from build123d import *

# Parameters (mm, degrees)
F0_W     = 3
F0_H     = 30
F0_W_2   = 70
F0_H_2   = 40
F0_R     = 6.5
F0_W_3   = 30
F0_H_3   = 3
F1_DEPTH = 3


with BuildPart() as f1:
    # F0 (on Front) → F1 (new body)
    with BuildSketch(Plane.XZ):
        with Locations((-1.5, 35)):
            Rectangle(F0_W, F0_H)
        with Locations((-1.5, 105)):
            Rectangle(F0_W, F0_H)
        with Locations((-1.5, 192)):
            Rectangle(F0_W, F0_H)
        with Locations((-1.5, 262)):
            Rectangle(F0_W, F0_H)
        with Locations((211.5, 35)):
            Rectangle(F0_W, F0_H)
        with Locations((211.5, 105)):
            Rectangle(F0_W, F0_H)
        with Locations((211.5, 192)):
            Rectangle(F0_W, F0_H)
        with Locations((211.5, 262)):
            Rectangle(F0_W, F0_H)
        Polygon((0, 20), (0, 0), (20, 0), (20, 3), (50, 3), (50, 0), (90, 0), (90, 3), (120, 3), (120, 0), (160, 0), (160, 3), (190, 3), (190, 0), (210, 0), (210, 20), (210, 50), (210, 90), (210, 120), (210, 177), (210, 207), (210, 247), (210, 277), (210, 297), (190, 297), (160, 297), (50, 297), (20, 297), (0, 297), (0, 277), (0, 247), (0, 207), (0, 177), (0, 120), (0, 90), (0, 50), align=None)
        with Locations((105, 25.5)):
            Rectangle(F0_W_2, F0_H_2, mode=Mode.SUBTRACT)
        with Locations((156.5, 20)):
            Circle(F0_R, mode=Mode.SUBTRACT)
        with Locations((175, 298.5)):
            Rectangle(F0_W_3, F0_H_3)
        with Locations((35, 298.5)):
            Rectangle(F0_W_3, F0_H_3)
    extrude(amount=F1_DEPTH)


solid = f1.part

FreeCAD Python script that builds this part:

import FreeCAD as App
import Part
import Sketcher
from FreeCAD import Vector
Q = App.Units.Quantity


def add_polygon(sketch, points):
    """Adds a closed chain of lines whose ends are joined by coincident constraints."""
    first, n = sketch.GeometryCount, len(points)
    for a, b in zip(points, points[1:] + points[:1]):
        sketch.addGeometry(Part.LineSegment(App.Vector(*a, 0), App.Vector(*b, 0)), False)
    for i in range(n):
        sketch.addConstraint(Sketcher.Constraint("Coincident", first + i, 2, first + (i + 1) % n, 1))

doc = App.newDocument("Part")
params = doc.addObject("Spreadsheet::Sheet", "Params")
for row, (alias, value) in enumerate([
    ("sketch1_diameter", "13 mm"),
    ("sketch1_width", "3 mm"),
    ("sketch1_width2", "20 mm"),
    ("sketch1_width3", "30 mm"),
    ("sketch1_width4", "40 mm"),
    ("pad1_length", "3 mm"),
], start=1):
    params.set(f"A{row}", alias)
    params.set(f"B{row}", "=" + value)
    params.setAlias(f"B{row}", alias)

body = doc.addObject("PartDesign::Body", "Body")

sketch1 = body.newObject("Sketcher::SketchObject", "Sketch")
sketch1.AttachmentSupport = (doc.getObject("XZ_Plane"), [""])
sketch1.MapMode = "FlatFace"
add_polygon(sketch1, [(-3, 50), (-3, 20), (0, 20), (0, 0), (20, 0), (20, 3), (50, 3), (50, 0), (90, 0), (90, 3), (120, 3), (120, 0), (160, 0), (160, 3), (190, 3), (190, 0), (210, 0), (210, 20), (213, 20), (213, 50), (210, 50), (210, 90), (213, 90), (213, 120), (210, 120), (210, 177), (213, 177), (213, 207), (210, 207), (210, 247), (213, 247), (213, 277), (210, 277), (210, 297), (190, 297), (190, 300), (160, 300), (160, 297), (50, 297), (50, 300), (20, 300), (20, 297), (0, 297), (0, 277), (-3, 277), (-3, 247), (0, 247), (0, 207), (-3, 207), (-3, 177), (0, 177), (0, 120), (-3, 120), (-3, 90), (0, 90), (0, 50)])
sketch1.addGeometry(Part.Circle(Vector(156.5, 20, 0), Vector(0, 0, 1), 6.5), False)
add_polygon(sketch1, [(140, 5.5), (70, 5.5), (70, 45.5), (140, 45.5)])
sketch1.addConstraint([
    Sketcher.Constraint("Vertical", 0),
    Sketcher.Constraint("Horizontal", 1),
    Sketcher.Constraint("Vertical", 2),
    Sketcher.Constraint("Horizontal", 3),
    Sketcher.Constraint("Vertical", 4),
    Sketcher.Constraint("Horizontal", 5),
    Sketcher.Constraint("Vertical", 6),
    Sketcher.Constraint("Horizontal", 7),
    Sketcher.Constraint("Vertical", 8),
    Sketcher.Constraint("Horizontal", 9),
    Sketcher.Constraint("Vertical", 10),
    Sketcher.Constraint("Horizontal", 11),
    Sketcher.Constraint("Vertical", 12),
    Sketcher.Constraint("Horizontal", 13),
    Sketcher.Constraint("Vertical", 14),
    Sketcher.Constraint("Horizontal", 15),
    Sketcher.Constraint("Vertical", 16),
    Sketcher.Constraint("Horizontal", 17),
    Sketcher.Constraint("Vertical", 18),
    Sketcher.Constraint("Horizontal", 19),
    Sketcher.Constraint("Vertical", 20),
    Sketcher.Constraint("Horizontal", 21),
    Sketcher.Constraint("Vertical", 22),
    Sketcher.Constraint("Horizontal", 23),
    Sketcher.Constraint("Vertical", 24),
    Sketcher.Constraint("Horizontal", 25),
    Sketcher.Constraint("Vertical", 26),
    Sketcher.Constraint("Horizontal", 27),
    Sketcher.Constraint("Vertical", 28),
    Sketcher.Constraint("Horizontal", 29),
    Sketcher.Constraint("Vertical", 30),
    Sketcher.Constraint("Horizontal", 31),
    Sketcher.Constraint("Vertical", 32),
    Sketcher.Constraint("Horizontal", 33),
    Sketcher.Constraint("Vertical", 34),
    Sketcher.Constraint("Horizontal", 35),
    Sketcher.Constraint("Vertical", 36),
    Sketcher.Constraint("Horizontal", 37),
    Sketcher.Constraint("Vertical", 38),
    Sketcher.Constraint("Horizontal", 39),
    Sketcher.Constraint("Vertical", 40),
    Sketcher.Constraint("Horizontal", 41),
    Sketcher.Constraint("Vertical", 42),
    Sketcher.Constraint("Horizontal", 43),
    Sketcher.Constraint("Vertical", 44),
    Sketcher.Constraint("Horizontal", 45),
    Sketcher.Constraint("Vertical", 46),
    Sketcher.Constraint("Horizontal", 47),
    Sketcher.Constraint("Vertical", 48),
    Sketcher.Constraint("Horizontal", 49),
    Sketcher.Constraint("Vertical", 50),
    Sketcher.Constraint("Horizontal", 51),
    Sketcher.Constraint("Vertical", 52),
    Sketcher.Constraint("Horizontal", 53),
    Sketcher.Constraint("Vertical", 54),
    Sketcher.Constraint("Horizontal", 55),
    Sketcher.Constraint("Horizontal", 57),
    Sketcher.Constraint("Vertical", 58),
    Sketcher.Constraint("Horizontal", 59),
    Sketcher.Constraint("Vertical", 60),
    Sketcher.Constraint("Coincident", 2, 2, -1, 1),
    Sketcher.Constraint("PointOnObject", 6, 2, -1),
    Sketcher.Constraint("PointOnObject", 10, 2, -1),
    Sketcher.Constraint("PointOnObject", 14, 2, -1),
    Sketcher.Constraint("PointOnObject", 41, 2, -2),
    Sketcher.Constraint("PointOnObject", 45, 2, -2),
    Sketcher.Constraint("PointOnObject", 49, 2, -2),
    Sketcher.Constraint("PointOnObject", 53, 2, -2),
    Sketcher.Constraint("Horizontal", 56, 3, 0, 2),
    Sketcher.Constraint("Horizontal", 5, 2, 8, 2),
    Sketcher.Constraint("Horizontal", 9, 2, 12, 2),
    Sketcher.Constraint("Horizontal", 1, 2, 16, 2),
    Sketcher.Constraint("Horizontal", 33, 2, 36, 2),
    Sketcher.Constraint("Horizontal", 35, 2, 38, 2),
    Sketcher.Constraint("Horizontal", 37, 2, 40, 2),
    Sketcher.Constraint("Horizontal", 31, 2, 42, 2),
    Sketcher.Constraint("Horizontal", 29, 2, 44, 2),
    Sketcher.Constraint("Horizontal", 27, 2, 46, 2),
    Sketcher.Constraint("Horizontal", 25, 2, 48, 2),
    Sketcher.Constraint("Horizontal", 23, 2, 50, 2),
    Sketcher.Constraint("Horizontal", 21, 2, 52, 2),
    Sketcher.Constraint("Horizontal", 19, 2, 54, 2),
    Sketcher.Constraint("Vertical", 16, 2, 19, 2),
    Sketcher.Constraint("Vertical", 18, 2, 21, 2),
    Sketcher.Constraint("Vertical", 20, 2, 23, 2),
    Sketcher.Constraint("Vertical", 22, 2, 25, 2),
    Sketcher.Constraint("Vertical", 24, 2, 27, 2),
    Sketcher.Constraint("Vertical", 26, 2, 29, 2),
    Sketcher.Constraint("Vertical", 28, 2, 31, 2),
    Sketcher.Constraint("Vertical", 14, 2, 33, 2),
    Sketcher.Constraint("Vertical", 12, 2, 35, 2),
    Sketcher.Constraint("Vertical", 6, 2, 37, 2),
    Sketcher.Constraint("Vertical", 4, 2, 39, 2),
    Sketcher.Constraint("Vertical", 0, 2, 43, 2),
    Sketcher.Constraint("Vertical", 44, 2, 47, 2),
    Sketcher.Constraint("Vertical", 48, 2, 51, 2),
    Sketcher.Constraint("Equal", 5, 9),
    Sketcher.Constraint("Equal", 7, 11),
    Sketcher.Constraint("Equal", 9, 13),
    Sketcher.Constraint("Equal", 3, 15),
    Sketcher.Constraint("Equal", 1, 17),
    Sketcher.Constraint("Equal", 39, 0),
    Sketcher.Constraint("Equal", 41, 2),
    Sketcher.Constraint("Equal", 55, 4),
    Sketcher.Constraint("Equal", 11, 20),
    Sketcher.Constraint("Equal", 18, 22),
    Sketcher.Constraint("Equal", 22, 26),
    Sketcher.Constraint("Equal", 20, 28),
    Sketcher.Constraint("Equal", 26, 30),
    Sketcher.Constraint("Equal", 16, 32),
    Sketcher.Constraint("Equal", 14, 34),
    Sketcher.Constraint("Equal", 54, 58),
    Sketcher.Constraint("Diameter", 56, Q("13 mm")),
    Sketcher.Constraint("DistanceX", 1, 1, 1, 2, Q("3 mm")),
    Sketcher.Constraint("DistanceX", 3, 1, 3, 2, Q("20 mm")),
    Sketcher.Constraint("DistanceX", 5, 1, 5, 2, Q("30 mm")),
    Sketcher.Constraint("DistanceX", 7, 1, 7, 2, Q("40 mm")),
    Sketcher.Constraint("DistanceX", 57, 2, 57, 1, Q("70 mm")),
    Sketcher.Constraint("DistanceY", 24, 1, 24, 2, Q("57 mm")),
    Sketcher.Constraint("DistanceX", -1, 1, 57, 2, Q("70 mm")),
    Sketcher.Constraint("DistanceX", -1, 1, 56, 3, Q("156.5 mm")),
    Sketcher.Constraint("DistanceY", -1, 1, 57, 2, Q("5.5 mm")),
])
sketch1.setExpression("Constraints[172]", "Params.sketch1_diameter")
sketch1.setExpression("Constraints[173]", "Params.sketch1_width")
sketch1.setExpression("Constraints[174]", "Params.sketch1_width2")
sketch1.setExpression("Constraints[175]", "Params.sketch1_width3")
sketch1.setExpression("Constraints[176]", "Params.sketch1_width4")
pad1 = body.newObject("PartDesign::Pad", "Pad")
pad1.Profile = sketch1
pad1.setExpression("Length", "Params.pad1_length")

doc.recompute()
